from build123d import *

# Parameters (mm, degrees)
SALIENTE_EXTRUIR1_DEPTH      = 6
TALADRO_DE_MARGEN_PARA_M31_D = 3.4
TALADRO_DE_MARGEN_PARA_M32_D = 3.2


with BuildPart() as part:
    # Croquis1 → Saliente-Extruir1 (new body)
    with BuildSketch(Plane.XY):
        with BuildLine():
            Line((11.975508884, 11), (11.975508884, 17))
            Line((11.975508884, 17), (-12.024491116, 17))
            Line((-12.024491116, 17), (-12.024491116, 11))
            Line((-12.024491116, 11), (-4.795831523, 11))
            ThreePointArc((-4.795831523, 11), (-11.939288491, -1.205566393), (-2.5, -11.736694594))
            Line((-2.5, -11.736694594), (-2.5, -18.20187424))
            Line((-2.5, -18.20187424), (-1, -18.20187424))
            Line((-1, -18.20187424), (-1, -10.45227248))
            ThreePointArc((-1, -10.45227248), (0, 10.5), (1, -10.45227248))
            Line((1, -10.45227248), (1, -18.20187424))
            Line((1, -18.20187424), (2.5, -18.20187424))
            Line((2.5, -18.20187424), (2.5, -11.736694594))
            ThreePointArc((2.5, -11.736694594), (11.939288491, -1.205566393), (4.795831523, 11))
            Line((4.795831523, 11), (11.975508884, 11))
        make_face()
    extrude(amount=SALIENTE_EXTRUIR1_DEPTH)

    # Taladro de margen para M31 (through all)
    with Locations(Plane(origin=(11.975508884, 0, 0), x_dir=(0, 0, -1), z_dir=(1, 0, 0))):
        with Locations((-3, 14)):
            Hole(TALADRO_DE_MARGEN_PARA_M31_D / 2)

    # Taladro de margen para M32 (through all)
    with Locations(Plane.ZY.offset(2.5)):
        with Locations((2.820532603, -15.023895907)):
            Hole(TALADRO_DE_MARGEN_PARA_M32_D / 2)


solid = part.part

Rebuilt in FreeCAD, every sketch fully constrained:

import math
import FreeCAD as App
import Part
import Sketcher
from FreeCAD import Vector
Q = App.Units.Quantity

doc = App.newDocument("Part")
body = doc.addObject("PartDesign::Body", "Body")

sketch1 = body.newObject("Sketcher::SketchObject", "Sketch")
sketch1.AttachmentSupport = (doc.getObject("XY_Plane"), [""])
sketch1.MapMode = "FlatFace"
sketch1.addGeometry([
    Part.LineSegment(Vector(12, 11, 0), Vector(12, 17, 0)),
    Part.LineSegment(Vector(12, 17, 0), Vector(-12, 17, 0)),
    Part.LineSegment(Vector(-12, 17, 0), Vector(-12, 11, 0)),
    Part.LineSegment(Vector(-12, 11, 0), Vector(-4.8, 11, 0)),
    Part.ArcOfCircle(Part.Circle(Vector(0, 0, 0), Vector(0, 0, 1), 12), math.radians(114), math.radians(258)),
    Part.LineSegment(Vector(-2.5, -11.7, 0), Vector(-2.5, -18.2, 0)),
    Part.LineSegment(Vector(-2.5, -18.2, 0), Vector(-1, -18.2, 0)),
    Part.LineSegment(Vector(-1, -18.2, 0), Vector(-1, -10.5, 0)),
    Part.ArcOfCircle(Part.Circle(Vector(0, 0, 0), Vector(0, 0, 1), 10.5), math.radians(-85), math.radians(265)),
    Part.LineSegment(Vector(1, -10.5, 0), Vector(1, -18.2, 0)),
    Part.LineSegment(Vector(1, -18.2, 0), Vector(2.5, -18.2, 0)),
    Part.LineSegment(Vector(2.5, -18.2, 0), Vector(2.5, -11.7, 0)),
    Part.ArcOfCircle(Part.Circle(Vector(0, 0, 0), Vector(0, 0, 1), 12), math.radians(-78), math.radians(66)),
    Part.LineSegment(Vector(4.8, 11, 0), Vector(12, 11, 0)),
], False)
sketch1.addConstraint([
    Sketcher.Constraint("Coincident", 0, 2, 1, 1),
    Sketcher.Constraint("Coincident", 1, 2, 2, 1),
    Sketcher.Constraint("Coincident", 2, 2, 3, 1),
    Sketcher.Constraint("Coincident", 3, 2, 4, 1),
    Sketcher.Constraint("Coincident", 4, 2, 5, 1),
    Sketcher.Constraint("Coincident", 5, 2, 6, 1),
    Sketcher.Constraint("Coincident", 6, 2, 7, 1),
    Sketcher.Constraint("Coincident", 7, 2, 8, 2),
    Sketcher.Constraint("Coincident", 8, 1, 9, 1),
    Sketcher.Constraint("Coincident", 9, 2, 10, 1),
    Sketcher.Constraint("Coincident", 10, 2, 11, 1),
    Sketcher.Constraint("Coincident", 11, 2, 12, 1),
    Sketcher.Constraint("Coincident", 12, 2, 13, 1),
    Sketcher.Constraint("Coincident", 13, 2, 0, 1),
    Sketcher.Constraint("Vertical", 0),
    Sketcher.Constraint("Horizontal", 1),
    Sketcher.Constraint("Vertical", 2),
    Sketcher.Constraint("Horizontal", 3),
    Sketcher.Constraint("Vertical", 5),
    Sketcher.Constraint("Horizontal", 6),
    Sketcher.Constraint("Vertical", 7),
    Sketcher.Constraint("Vertical", 9),
    Sketcher.Constraint("Horizontal", 10),
    Sketcher.Constraint("Vertical", 11),
    Sketcher.Constraint("Horizontal", 13),
    Sketcher.Constraint("Coincident", 4, 3, -1, 1),
    Sketcher.Constraint("Coincident", 8, 3, -1, 1),
    Sketcher.Constraint("Coincident", 12, 3, -1, 1),
    Sketcher.Constraint("Equal", 4, 12),
    Sketcher.Constraint("Symmetric", 6, 2, 9, 2, -2),
    Sketcher.Constraint("Horizontal", 4, 2, 11, 2),
    Sketcher.Constraint("Horizontal", 3, 2, 12, 2),
    Sketcher.Constraint("Radius", 4, Q("12 mm")),
    Sketcher.Constraint("Radius", 8, Q("10.5 mm")),
    Sketcher.Constraint("DistanceX", 1, 2, 1, 1, Q("24 mm")),
    Sketcher.Constraint("DistanceY", 0, 1, 0, 2, Q("6 mm")),
    Sketcher.Constraint("DistanceX", 6, 1, 6, 2, Q("1.5 mm")),
    Sketcher.Constraint("DistanceY", -1, 1, 0, 2, Q("17 mm")),
    Sketcher.Constraint("DistanceX", 6, 2, -1, 1, Q("1 mm")),
    Sketcher.Constraint("DistanceY", 7, 1, 7, 2, Q("7.749602 mm")),
    Sketcher.Constraint("DistanceX", 3, 1, 3, 2, Q("7.22866 mm")),
])
pad1 = body.newObject("PartDesign::Pad", "Pad")
pad1.Profile = sketch1
pad1.Length = 6

sketch2 = body.newObject("Sketcher::SketchObject", "Sketch001")
sketch2.AttachmentSupport = (doc.getObject("YZ_Plane"), [""])
sketch2.MapMode = "FlatFace"
sketch2.AttachmentOffset = App.Placement(Vector(0, 0, 11.975509), App.Rotation())
sketch2.addGeometry(Part.Circle(Vector(14, 3, 0), Vector(0, 0, 1), 1.7), False)
sketch2.addConstraint([
    Sketcher.Constraint("Diameter", 0, Q("3.4 mm")),
    Sketcher.Constraint("DistanceX", -1, 1, 0, 3, Q("14 mm")),
    Sketcher.Constraint("DistanceY", -1, 1, 0, 3, Q("3 mm")),
])
doc.recompute()
hole = body.newObject("PartDesign::Hole", "Hole")
hole.Profile = sketch2
hole.ThreadType = "None"
hole.Diameter = 3.4
hole.DepthType = "ThroughAll"

sketch3 = body.newObject("Sketcher::SketchObject", "Sketch002")
sketch3.AttachmentSupport = (doc.getObject("YZ_Plane"), [""])
sketch3.MapMode = "FlatFace"
sketch3.AttachmentOffset = App.Placement(Vector(0, 0, -2.5), App.Rotation())
sketch3.addGeometry(Part.Circle(Vector(-15, 2.8, 0), Vector(0, 0, 1), 1.6), False)
sketch3.addConstraint([
    Sketcher.Constraint("Diameter", 0, Q("3.2 mm")),
    Sketcher.Constraint("DistanceX", 0, 3, -1, 1, Q("15.023896 mm")),
    Sketcher.Constraint("DistanceY", -1, 1, 0, 3, Q("2.820533 mm")),
])
doc.recompute()
hole2 = body.newObject("PartDesign::Hole", "Hole001")
hole2.Profile = sketch3
hole2.ThreadType = "None"
hole2.Diameter = 3.2
hole2.DepthType = "ThroughAll"
hole2.Reversed = True

doc.recompute()
